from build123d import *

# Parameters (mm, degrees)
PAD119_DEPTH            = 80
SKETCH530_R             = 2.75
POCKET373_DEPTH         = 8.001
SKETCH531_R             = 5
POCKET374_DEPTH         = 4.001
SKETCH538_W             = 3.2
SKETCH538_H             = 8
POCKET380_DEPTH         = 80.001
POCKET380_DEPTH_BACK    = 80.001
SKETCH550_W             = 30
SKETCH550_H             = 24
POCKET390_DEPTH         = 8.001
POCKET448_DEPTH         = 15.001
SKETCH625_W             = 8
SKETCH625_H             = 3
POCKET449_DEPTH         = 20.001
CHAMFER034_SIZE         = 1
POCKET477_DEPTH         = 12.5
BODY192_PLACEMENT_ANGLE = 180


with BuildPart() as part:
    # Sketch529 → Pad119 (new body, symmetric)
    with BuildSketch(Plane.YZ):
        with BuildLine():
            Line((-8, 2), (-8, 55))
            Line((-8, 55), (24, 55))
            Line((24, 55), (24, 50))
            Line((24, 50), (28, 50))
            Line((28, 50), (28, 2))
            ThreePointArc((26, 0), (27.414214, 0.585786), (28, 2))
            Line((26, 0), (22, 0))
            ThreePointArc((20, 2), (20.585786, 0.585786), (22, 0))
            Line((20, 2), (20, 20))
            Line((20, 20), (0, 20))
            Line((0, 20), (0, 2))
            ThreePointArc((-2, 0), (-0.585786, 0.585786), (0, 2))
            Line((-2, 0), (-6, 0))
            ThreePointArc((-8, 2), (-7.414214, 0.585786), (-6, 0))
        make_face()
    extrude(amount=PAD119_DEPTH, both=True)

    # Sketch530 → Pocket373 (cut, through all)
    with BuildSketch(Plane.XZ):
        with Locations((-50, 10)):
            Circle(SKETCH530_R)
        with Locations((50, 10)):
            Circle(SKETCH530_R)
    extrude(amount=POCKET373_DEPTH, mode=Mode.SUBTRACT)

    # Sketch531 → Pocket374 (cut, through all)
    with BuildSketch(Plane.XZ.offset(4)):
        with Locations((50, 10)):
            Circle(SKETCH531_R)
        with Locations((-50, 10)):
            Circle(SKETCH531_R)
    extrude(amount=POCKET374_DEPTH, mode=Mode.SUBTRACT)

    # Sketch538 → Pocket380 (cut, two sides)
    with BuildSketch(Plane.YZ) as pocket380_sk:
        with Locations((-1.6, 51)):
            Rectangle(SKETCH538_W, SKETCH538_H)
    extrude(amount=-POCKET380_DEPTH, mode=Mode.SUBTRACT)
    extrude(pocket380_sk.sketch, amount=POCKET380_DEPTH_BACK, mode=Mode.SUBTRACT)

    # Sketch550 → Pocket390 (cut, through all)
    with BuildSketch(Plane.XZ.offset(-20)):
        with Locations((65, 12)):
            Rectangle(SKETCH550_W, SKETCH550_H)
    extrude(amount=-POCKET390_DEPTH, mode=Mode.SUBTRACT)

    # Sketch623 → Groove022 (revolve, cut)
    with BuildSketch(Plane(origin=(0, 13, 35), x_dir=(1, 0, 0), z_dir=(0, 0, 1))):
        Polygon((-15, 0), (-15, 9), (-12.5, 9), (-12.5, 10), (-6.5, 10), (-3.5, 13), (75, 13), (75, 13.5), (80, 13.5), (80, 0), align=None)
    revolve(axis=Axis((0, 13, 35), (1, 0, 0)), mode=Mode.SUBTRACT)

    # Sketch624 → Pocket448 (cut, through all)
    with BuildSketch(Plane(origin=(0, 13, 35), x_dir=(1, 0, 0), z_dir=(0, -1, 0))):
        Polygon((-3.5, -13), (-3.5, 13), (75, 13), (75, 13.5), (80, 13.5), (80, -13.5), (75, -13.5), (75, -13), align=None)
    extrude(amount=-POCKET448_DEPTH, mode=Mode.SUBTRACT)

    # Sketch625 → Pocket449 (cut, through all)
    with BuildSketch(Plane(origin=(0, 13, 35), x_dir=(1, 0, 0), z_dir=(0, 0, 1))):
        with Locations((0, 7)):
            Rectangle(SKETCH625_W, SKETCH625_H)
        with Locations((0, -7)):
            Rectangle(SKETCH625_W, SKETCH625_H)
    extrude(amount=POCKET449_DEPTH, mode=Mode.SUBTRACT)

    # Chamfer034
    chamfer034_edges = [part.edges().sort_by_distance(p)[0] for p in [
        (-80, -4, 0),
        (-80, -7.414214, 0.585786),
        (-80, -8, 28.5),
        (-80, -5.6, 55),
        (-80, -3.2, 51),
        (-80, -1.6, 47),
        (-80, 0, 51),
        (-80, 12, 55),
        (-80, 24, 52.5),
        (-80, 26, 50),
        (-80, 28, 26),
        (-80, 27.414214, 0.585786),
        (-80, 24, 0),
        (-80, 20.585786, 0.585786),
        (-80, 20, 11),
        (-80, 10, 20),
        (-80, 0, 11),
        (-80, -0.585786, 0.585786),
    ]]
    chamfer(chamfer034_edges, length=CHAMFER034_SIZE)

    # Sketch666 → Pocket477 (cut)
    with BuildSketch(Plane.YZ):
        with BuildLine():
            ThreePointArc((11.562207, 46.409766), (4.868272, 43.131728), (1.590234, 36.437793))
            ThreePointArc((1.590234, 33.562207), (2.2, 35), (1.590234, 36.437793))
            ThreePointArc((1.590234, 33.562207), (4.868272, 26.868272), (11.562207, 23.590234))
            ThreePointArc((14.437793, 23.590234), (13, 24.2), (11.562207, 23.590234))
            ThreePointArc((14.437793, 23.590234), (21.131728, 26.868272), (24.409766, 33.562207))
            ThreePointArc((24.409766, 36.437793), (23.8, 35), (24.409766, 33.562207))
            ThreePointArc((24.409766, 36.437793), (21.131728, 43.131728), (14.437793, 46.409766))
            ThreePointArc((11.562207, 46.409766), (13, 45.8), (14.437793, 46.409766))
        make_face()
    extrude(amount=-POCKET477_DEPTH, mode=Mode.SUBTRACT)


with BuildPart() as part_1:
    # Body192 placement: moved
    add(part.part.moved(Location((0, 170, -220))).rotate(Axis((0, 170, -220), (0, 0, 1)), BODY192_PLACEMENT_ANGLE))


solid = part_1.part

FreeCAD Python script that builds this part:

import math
import FreeCAD as App
import Part
import Sketcher
from FreeCAD import Vector
Q = App.Units.Quantity


def edges_at(feature, points):
    """Names of the edges that pass closest to the given points."""
    edges = feature.Shape.Edges
    near = lambda p: min(range(len(edges)), key=lambda i: edges[i].distToShape(Part.Vertex(*p))[0])
    return sorted({f"Edge{near(p) + 1}" for p in points})


def add_polygon(sketch, points):
    """Adds a closed chain of lines whose ends are joined by coincident constraints."""
    first, n = sketch.GeometryCount, len(points)
    for a, b in zip(points, points[1:] + points[:1]):
        sketch.addGeometry(Part.LineSegment(App.Vector(*a, 0), App.Vector(*b, 0)), False)
    for i in range(n):
        sketch.addConstraint(Sketcher.Constraint("Coincident", first + i, 2, first + (i + 1) % n, 1))

doc = App.newDocument("Part")
body = doc.addObject("PartDesign::Body", "Body")

# Sketch on YZ plane
sketch1 = body.newObject("Sketcher::SketchObject", "Sketch")
sketch1.AttachmentSupport = (doc.getObject("YZ_Plane"), [""])
sketch1.MapMode = "FlatFace"
sketch1.addGeometry(Part.LineSegment(Vector(-8, 55, 0), Vector(-8, 2, 0)), False)
sketch1.addGeometry(Part.ArcOfCircle(Part.Circle(Vector(-6, 2, 0), Vector(0, 0, 1), 2), math.radians(180), math.radians(270)), False)
sketch1.addGeometry(Part.LineSegment(Vector(-6, 0, 0), Vector(-2, 0, 0)), False)
sketch1.addGeometry(Part.ArcOfCircle(Part.Circle(Vector(-2, 2, 0), Vector(0, 0, 1), 2), math.radians(-90), math.radians(0)), False)
sketch1.addGeometry(Part.LineSegment(Vector(0, 2, 0), Vector(0, 20, 0)), False)
sketch1.addGeometry(Part.LineSegment(Vector(0, 20, 0), Vector(20, 20, 0)), False)
sketch1.addGeometry(Part.LineSegment(Vector(20, 20, 0), Vector(20, 2, 0)), False)
sketch1.addGeometry(Part.ArcOfCircle(Part.Circle(Vector(22, 2, 0), Vector(0, 0, 1), 2), math.radians(180), math.radians(270)), False)
sketch1.addGeometry(Part.LineSegment(Vector(22, 0, 0), Vector(26, 0, 0)), False)
sketch1.addGeometry(Part.ArcOfCircle(Part.Circle(Vector(26, 2, 0), Vector(0, 0, 1), 2), math.radians(-90), math.radians(0)), False)
sketch1.addGeometry(Part.LineSegment(Vector(28, 2, 0), Vector(28, 50, 0)), False)
sketch1.addGeometry(Part.LineSegment(Vector(28, 50, 0), Vector(24, 50, 0)), False)
sketch1.addGeometry(Part.LineSegment(Vector(24, 50, 0), Vector(24, 55, 0)), False)
sketch1.addGeometry(Part.LineSegment(Vector(24, 55, 0), Vector(-8, 55, 0)), False)
sketch1.addConstraint(Sketcher.Constraint("Tangent", 0, 2, 1, 1))
sketch1.addConstraint(Sketcher.Constraint("Tangent", 1, 2, 2, 1))
sketch1.addConstraint(Sketcher.Constraint("Tangent", 2, 2, 3, 1))
sketch1.addConstraint(Sketcher.Constraint("Tangent", 3, 2, 4, 1))
sketch1.addConstraint(Sketcher.Constraint("Coincident", 4, 2, 5, 1))
sketch1.addConstraint(Sketcher.Constraint("Coincident", 5, 2, 6, 1))
sketch1.addConstraint(Sketcher.Constraint("Tangent", 6, 2, 7, 1))
sketch1.addConstraint(Sketcher.Constraint("Tangent", 7, 2, 8, 1))
sketch1.addConstraint(Sketcher.Constraint("Tangent", 8, 2, 9, 1))
sketch1.addConstraint(Sketcher.Constraint("Tangent", 9, 2, 10, 1))
sketch1.addConstraint(Sketcher.Constraint("Coincident", 10, 2, 11, 1))
sketch1.addConstraint(Sketcher.Constraint("Coincident", 11, 2, 12, 1))
sketch1.addConstraint(Sketcher.Constraint("Coincident", 12, 2, 13, 1))
sketch1.addConstraint(Sketcher.Constraint("Coincident", 13, 2, 0, 1))
sketch1.addConstraint(Sketcher.Constraint("Vertical", 0))
sketch1.addConstraint(Sketcher.Constraint("Horizontal", 2))
sketch1.addConstraint(Sketcher.Constraint("Vertical", 4))
sketch1.addConstraint(Sketcher.Constraint("Horizontal", 5))
sketch1.addConstraint(Sketcher.Constraint("Vertical", 6))
sketch1.addConstraint(Sketcher.Constraint("Horizontal", 8))
sketch1.addConstraint(Sketcher.Constraint("Vertical", 10))
sketch1.addConstraint(Sketcher.Constraint("Horizontal", 11))
sketch1.addConstraint(Sketcher.Constraint("Vertical", 12))
sketch1.addConstraint(Sketcher.Constraint("Horizontal", 13))
sketch1.addConstraint(Sketcher.Constraint("Equal", 1, 3))
sketch1.addConstraint(Sketcher.Constraint("Equal", 3, 7))
sketch1.addConstraint(Sketcher.Constraint("Equal", 7, 9))
sketch1.addConstraint(Sketcher.Constraint("PointOnObject", 1, 2, -1))
sketch1.addConstraint(Sketcher.Constraint("PointOnObject", 3, 2, -2))
sketch1.addConstraint(Sketcher.Constraint("PointOnObject", 7, 2, -1))
sketch1.addConstraint(Sketcher.Constraint("Equal", 2, 8))
sketch1.addConstraint(Sketcher.Constraint("Equal", 8, 11))
sketch1.addConstraint(Sketcher.Constraint("Radius", 1, 1.999999))
sketch1.addConstraint(Sketcher.Constraint("DistanceX", 2, 1, 2, 2, 4.0))
sketch1.addConstraint(Sketcher.Constraint("DistanceX", 5, 1, 5, 2, 20.0))
sketch1.addConstraint(Sketcher.Constraint("DistanceY", 0, 2, 0, 1, 53.0))
sketch1.addConstraint(Sketcher.Constraint("DistanceY", 4, 1, 4, 2, 18.0))
sketch1.addConstraint(Sketcher.Constraint("DistanceY", 10, 1, 10, 2, 48.0))
pad1 = body.newObject("PartDesign::Pad", "Pad")
pad1.Profile = sketch1
pad1.Length = 160
pad1.Midplane = True

# Sketch on XZ plane
sketch2 = body.newObject("Sketcher::SketchObject", "Sketch001")
sketch2.AttachmentSupport = (doc.getObject("XZ_Plane"), [""])
sketch2.MapMode = "FlatFace"
sketch2.addGeometry(Part.Circle(Vector(-50, 10, 0), Vector(0, 0, 1), 2.8), False)
sketch2.addGeometry(Part.Circle(Vector(50, 10, 0), Vector(0, 0, 1), 2.8), False)
sketch2.addConstraint(Sketcher.Constraint("Equal", 0, 1))
sketch2.addConstraint(Sketcher.Constraint("Symmetric", 0, 3, 1, 3, -2))
sketch2.addConstraint(Sketcher.Constraint("Diameter", 0, 5.5))
sketch2.addConstraint(Sketcher.Constraint("DistanceX", 0, 3, -1, 1, 50.0))
sketch2.addConstraint(Sketcher.Constraint("DistanceY", -1, 1, 0, 3, 10.0))
pocket1 = body.newObject("PartDesign::Pocket", "Pocket")
pocket1.Profile = sketch2
pocket1.Type = "ThroughAll"
pocket1.Reversed = True

# Sketch on XZ plane
sketch3 = body.newObject("Sketcher::SketchObject", "Sketch002")
sketch3.AttachmentSupport = (doc.getObject("XZ_Plane"), [""])
sketch3.MapMode = "FlatFace"
sketch3.AttachmentOffset = App.Placement(Vector(0, 0, 4), App.Rotation())
sketch3.addGeometry(Part.Circle(Vector(50, 10, 0), Vector(0, 0, 1), 5), False)
sketch3.addGeometry(Part.Circle(Vector(-50, 10, 0), Vector(0, 0, 1), 5), False)
sketch3.addConstraint(Sketcher.Constraint("Equal", 0, 1))
sketch3.addConstraint(Sketcher.Constraint("Symmetric", 0, 3, 1, 3, -2))
sketch3.addConstraint(Sketcher.Constraint("Diameter", 0, 10.0))
sketch3.addConstraint(Sketcher.Constraint("DistanceX", -1, 1, 0, 3, 50.0))
sketch3.addConstraint(Sketcher.Constraint("DistanceY", -1, 1, 0, 3, 10.0))
pocket2 = body.newObject("PartDesign::Pocket", "Pocket001")
pocket2.Profile = sketch3
pocket2.Type = "ThroughAll"
pocket2.Reversed = True

# Sketch on YZ plane
sketch4 = body.newObject("Sketcher::SketchObject", "Sketch003")
sketch4.AttachmentSupport = (doc.getObject("YZ_Plane"), [""])
sketch4.MapMode = "FlatFace"
add_polygon(sketch4, [(-3.2, 55), (-3.2, 47), (0, 47), (0, 55)])  # lines 0-3
sketch4.addConstraint(Sketcher.Constraint("Vertical", 0))
sketch4.addConstraint(Sketcher.Constraint("Horizontal", 1))
sketch4.addConstraint(Sketcher.Constraint("Vertical", 2))
sketch4.addConstraint(Sketcher.Constraint("Horizontal", 3))
sketch4.addConstraint(Sketcher.Constraint("PointOnObject", 1, 2, -2))
sketch4.addConstraint(Sketcher.Constraint("DistanceY", 0, 2, 0, 1, 8.0))
sketch4.addConstraint(Sketcher.Constraint("DistanceX", 1, 1, 1, 2, 3.2))
sketch4.addConstraint(Sketcher.Constraint("DistanceY", -1, 1, 0, 2, 47.0))
pocket3 = body.newObject("PartDesign::Pocket", "Pocket002")
pocket3.Profile = sketch4
pocket3.Type = "ThroughAll"
pocket3.Midplane = True

# Sketch on XZ plane
sketch5 = body.newObject("Sketcher::SketchObject", "Sketch004")
sketch5.AttachmentSupport = (doc.getObject("XZ_Plane"), [""])
sketch5.MapMode = "FlatFace"
sketch5.AttachmentOffset = App.Placement(Vector(0, 0, -20), App.Rotation())
add_polygon(sketch5, [(50, 24), (50, 0), (80, 0), (80, 24)])  # lines 0-3
sketch5.addConstraint(Sketcher.Constraint("Vertical", 0))
sketch5.addConstraint(Sketcher.Constraint("Horizontal", 1))
sketch5.addConstraint(Sketcher.Constraint("Vertical", 2))
sketch5.addConstraint(Sketcher.Constraint("Horizontal", 3))
sketch5.addConstraint(Sketcher.Constraint("PointOnObject", 0, 2, -1))
sketch5.addConstraint(Sketcher.Constraint("DistanceX", 1, 1, 1, 2, 30.0))
sketch5.addConstraint(Sketcher.Constraint("DistanceY", 0, 2, 0, 1, 24.0))
sketch5.addConstraint(Sketcher.Constraint("DistanceX", -1, 1, 0, 2, 50.0))
pocket4 = body.newObject("PartDesign::Pocket", "Pocket003")
pocket4.Profile = sketch5
pocket4.Type = "ThroughAll"

# Sketch on XY plane
sketch6 = body.newObject("Sketcher::SketchObject", "Sketch005")
sketch6.AttachmentSupport = (doc.getObject("XY_Plane"), [""])
sketch6.MapMode = "FlatFace"
sketch6.AttachmentOffset = App.Placement(Vector(0, 0, 35), App.Rotation())
add_polygon(sketch6, [(-15, 22), (-15, 13), (80, 13), (80, 26.5), (75, 26.5), (75, 26), (-3.5, 26), (-6.5, 23), (-12.5, 23), (-12.5, 22)])  # lines 0-9
sketch6.addGeometry(Part.LineSegment(Vector(-15, 13, 0), Vector(80, 13, 0)), True)  # axis
sketch6.addConstraint(Sketcher.Constraint("Vertical", 0))
sketch6.addConstraint(Sketcher.Constraint("Horizontal", 1))
sketch6.addConstraint(Sketcher.Constraint("Vertical", 2))
sketch6.addConstraint(Sketcher.Constraint("Horizontal", 3))
sketch6.addConstraint(Sketcher.Constraint("Vertical", 4))
sketch6.addConstraint(Sketcher.Constraint("Horizontal", 5))
sketch6.addConstraint(Sketcher.Constraint("Horizontal", 7))
sketch6.addConstraint(Sketcher.Constraint("Vertical", 8))
sketch6.addConstraint(Sketcher.Constraint("Horizontal", 9))
sketch6.addConstraint(Sketcher.Constraint("Horizontal", 10))
sketch6.addConstraint(Sketcher.Constraint("Coincident", 10, 1, 0, 2))
sketch6.addConstraint(Sketcher.Constraint("Vertical", 2, 2, 10, 2))
sketch6.addConstraint(Sketcher.Constraint("DistanceX", 1, 1, 1, 2, 95.0))
sketch6.addConstraint(Sketcher.Constraint("DistanceX", 3, 2, 3, 1, 5.0))
sketch6.addConstraint(Sketcher.Constraint("DistanceX", 7, 2, 7, 1, 6.0))
sketch6.addConstraint(Sketcher.Constraint("DistanceY", 0, 2, 0, 1, 9.0))
sketch6.addConstraint(Sketcher.Constraint("DistanceY", 8, 2, 8, 1, 1.0))
sketch6.addConstraint(Sketcher.Constraint("Angle", 6, Q("-135 deg")))
sketch6.addConstraint(Sketcher.Constraint("DistanceX", 5, 2, 5, 1, 78.5))
sketch6.addConstraint(Sketcher.Constraint("DistanceX", 9, 2, 9, 1, 2.5))
sketch6.addConstraint(Sketcher.Constraint("DistanceY", 2, 1, 2, 2, 13.5))
sketch6.addConstraint(Sketcher.Constraint("DistanceX", 0, 2, -1, 1, 15.0))
sketch6.addConstraint(Sketcher.Constraint("DistanceY", -1, 1, 0, 2, 13.0))
groove = body.newObject("PartDesign::Groove", "Groove")
groove.Profile = sketch6
groove.ReferenceAxis = (sketch6, ["Axis0"])
groove.Angle = 360

# Sketch on XZ plane
sketch7 = body.newObject("Sketcher::SketchObject", "Sketch006")
sketch7.AttachmentSupport = (doc.getObject("XZ_Plane"), [""])
sketch7.MapMode = "FlatFace"
sketch7.AttachmentOffset = App.Placement(Vector(0, 0, -13), App.Rotation())
add_polygon(sketch7, [(-3.5, 48), (-3.5, 22), (75, 22), (75, 21.5), (80, 21.5), (80, 48.5), (75, 48.5), (75, 48)])  # lines 0-7
sketch7.addConstraint(Sketcher.Constraint("Vertical", 0))
sketch7.addConstraint(Sketcher.Constraint("Horizontal", 1))
sketch7.addConstraint(Sketcher.Constraint("Vertical", 2))
sketch7.addConstraint(Sketcher.Constraint("Horizontal", 3))
sketch7.addConstraint(Sketcher.Constraint("Vertical", 4))
sketch7.addConstraint(Sketcher.Constraint("Horizontal", 5))
sketch7.addConstraint(Sketcher.Constraint("Vertical", 6))
sketch7.addConstraint(Sketcher.Constraint("Horizontal", 7))
sketch7.addConstraint(Sketcher.Constraint("Vertical", 2, 2, 5, 2))
sketch7.addConstraint(Sketcher.Constraint("Equal", 2, 6))
sketch7.addConstraint(Sketcher.Constraint("DistanceX", 3, 1, 3, 2, 5.0))
sketch7.addConstraint(Sketcher.Constraint("DistanceY", 0, 2, 0, 1, 26.0))
sketch7.addConstraint(Sketcher.Constraint("DistanceY", 4, 1, 4, 2, 27.0))
sketch7.addConstraint(Sketcher.Constraint("DistanceX", 1, 1, 1, 2, 78.5))
sketch7.addConstraint(Sketcher.Constraint("DistanceY", -1, 1, 0, 2, 22.0))
sketch7.addConstraint(Sketcher.Constraint("DistanceX", -1, 1, 1, 2, 75.0))
pocket5 = body.newObject("PartDesign::Pocket", "Pocket004")
pocket5.Profile = sketch7
pocket5.Type = "ThroughAll"

# Sketch on XY plane
sketch8 = body.newObject("Sketcher::SketchObject", "Sketch007")
sketch8.AttachmentSupport = (doc.getObject("XY_Plane"), [""])
sketch8.MapMode = "FlatFace"
sketch8.AttachmentOffset = App.Placement(Vector(0, 0, 35), App.Rotation())
add_polygon(sketch8, [(-4, 21.5), (-4, 18.5), (4, 18.5), (4, 21.5)])  # lines 0-3
add_polygon(sketch8, [(-4, 7.5), (-4, 4.5), (4, 4.5), (4, 7.5)])  # lines 4-7
sketch8.addConstraint(Sketcher.Constraint("Vertical", 0))
sketch8.addConstraint(Sketcher.Constraint("Horizontal", 1))
sketch8.addConstraint(Sketcher.Constraint("Vertical", 2))
sketch8.addConstraint(Sketcher.Constraint("Horizontal", 3))
sketch8.addConstraint(Sketcher.Constraint("Vertical", 4))
sketch8.addConstraint(Sketcher.Constraint("Horizontal", 5))
sketch8.addConstraint(Sketcher.Constraint("Vertical", 6))
sketch8.addConstraint(Sketcher.Constraint("Horizontal", 7))
sketch8.addConstraint(Sketcher.Constraint("Vertical", 3, 2, 4, 2))
sketch8.addConstraint(Sketcher.Constraint("Vertical", 2, 2, 5, 2))
sketch8.addConstraint(Sketcher.Constraint("Equal", 2, 4))
sketch8.addConstraint(Sketcher.Constraint("DistanceX", 1, 1, 1, 2, 8.0))
sketch8.addConstraint(Sketcher.Constraint("DistanceY", 0, 2, 0, 1, 3.0))
sketch8.addConstraint(Sketcher.Constraint("DistanceX", 0, 2, -1, 1, 4.0))
sketch8.addConstraint(Sketcher.Constraint("DistanceY", 4, 2, 0, 2, 14.0))
sketch8.addConstraint(Sketcher.Constraint("DistanceY", -1, 1, 0, 2, 18.5))
pocket6 = body.newObject("PartDesign::Pocket", "Pocket005")
pocket6.Profile = sketch8
pocket6.Type = "ThroughAll"
pocket6.Reversed = True
doc.recompute()

chamfer = body.newObject("PartDesign::Chamfer", "Chamfer")
chamfer.Base = (pocket6, edges_at(pocket6, [
    (-80, -4, 0),
    (-80, -7.414, 0.586),
    (-80, -8, 28.5),
    (-80, -5.6, 55),
    (-80, -3.2, 51),
    (-80, -1.6, 47),
    (-80, 0, 51),
    (-80, 12, 55),
    (-80, 24, 52.5),
    (-80, 26, 50),
    (-80, 28, 26),
    (-80, 27.414, 0.586),
    (-80, 24, 0),
    (-80, 20.586, 0.586),
    (-80, 20, 11),
    (-80, 10, 20),
    (-80, 0, 11),
    (-80, -0.586, 0.586),
]))
chamfer.Size = 1

# Sketch on YZ plane
sketch9 = body.newObject("Sketcher::SketchObject", "Sketch008")
sketch9.AttachmentSupport = (doc.getObject("YZ_Plane"), [""])
sketch9.MapMode = "FlatFace"
sketch9.addGeometry(Part.ArcOfCircle(Part.Circle(Vector(13, 35, 0), Vector(0, 0, 1), 11.5), math.radians(97), math.radians(173)), False)
sketch9.addGeometry(Part.ArcOfCircle(Part.Circle(Vector(0.2, 35, 0), Vector(0, 0, 1), 2), math.radians(-46), math.radians(46)), False)
sketch9.addGeometry(Part.ArcOfCircle(Part.Circle(Vector(13, 35, 0), Vector(0, 0, 1), 11.5), math.radians(-173), math.radians(-97)), False)
sketch9.addGeometry(Part.ArcOfCircle(Part.Circle(Vector(13, 22.2, 0), Vector(0, 0, 1), 2), math.radians(44), math.radians(136)), False)
sketch9.addGeometry(Part.ArcOfCircle(Part.Circle(Vector(13, 35, 0), Vector(0, 0, 1), 11.5), math.radians(-83), math.radians(-7)), False)
sketch9.addGeometry(Part.ArcOfCircle(Part.Circle(Vector(25.8, 35, 0), Vector(0, 0, 1), 2), math.radians(134), math.radians(226)), False)
sketch9.addGeometry(Part.ArcOfCircle(Part.Circle(Vector(13, 35, 0), Vector(0, 0, 1), 11.5), math.radians(7), math.radians(83)), False)
sketch9.addGeometry(Part.ArcOfCircle(Part.Circle(Vector(13, 47.8, 0), Vector(0, 0, 1), 2), math.radians(-136), math.radians(-44)), False)
sketch9.addConstraint(Sketcher.Constraint("Coincident", 0, 2, 1, 2))
sketch9.addConstraint(Sketcher.Constraint("Coincident", 1, 1, 2, 1))
sketch9.addConstraint(Sketcher.Constraint("Coincident", 2, 2, 3, 2))
sketch9.addConstraint(Sketcher.Constraint("Coincident", 3, 1, 4, 1))
sketch9.addConstraint(Sketcher.Constraint("Coincident", 4, 2, 5, 2))
sketch9.addConstraint(Sketcher.Constraint("Coincident", 5, 1, 6, 1))
sketch9.addConstraint(Sketcher.Constraint("Coincident", 6, 2, 7, 2))
sketch9.addConstraint(Sketcher.Constraint("Coincident", 7, 1, 0, 1))
sketch9.addConstraint(Sketcher.Constraint("Coincident", 2, 3, 0, 3))
sketch9.addConstraint(Sketcher.Constraint("Coincident", 4, 3, 0, 3))
sketch9.addConstraint(Sketcher.Constraint("Coincident", 6, 3, 0, 3))
sketch9.addConstraint(Sketcher.Constraint("Equal", 0, 2))
sketch9.addConstraint(Sketcher.Constraint("Equal", 1, 3))
sketch9.addConstraint(Sketcher.Constraint("Equal", 2, 4))
sketch9.addConstraint(Sketcher.Constraint("Equal", 3, 5))
sketch9.addConstraint(Sketcher.Constraint("Equal", 4, 6))
sketch9.addConstraint(Sketcher.Constraint("Equal", 5, 7))
sketch9.addConstraint(Sketcher.Constraint("Horizontal", 0, 3, 1, 3))
sketch9.addConstraint(Sketcher.Constraint("Horizontal", 4, 3, 5, 3))
sketch9.addConstraint(Sketcher.Constraint("Horizontal", 2, 2, 3, 1))
sketch9.addConstraint(Sketcher.Constraint("Horizontal", 1, 1, 4, 2))
sketch9.addConstraint(Sketcher.Constraint("Horizontal", 6, 2, 7, 1))
sketch9.addConstraint(Sketcher.Constraint("Vertical", 3, 1, 6, 2))
sketch9.addConstraint(Sketcher.Constraint("Radius", 1, 1.999999))
sketch9.addConstraint(Sketcher.Constraint("Radius", 0, 11.500002))
sketch9.addConstraint(Sketcher.Constraint("DistanceX", -1, 1, 0, 3, 13.000001))
sketch9.addConstraint(Sketcher.Constraint("DistanceY", -1, 1, 0, 3, 34.999999))
sketch9.addConstraint(Sketcher.Constraint("DistanceX", -1, 1, 1, 3, 0.200001))
sketch9.addConstraint(Sketcher.Constraint("DistanceY", -1, 1, 3, 3, 22.200001))
pocket7 = body.newObject("PartDesign::Pocket", "Pocket006")
pocket7.Profile = sketch9
pocket7.Length = 12.5
body2 = doc.addObject("PartDesign::Body", "Body001")
doc.recompute()

body.Placement = App.Placement(Vector(0, 170, -220), App.Rotation(Vector(0, 0, 1), 180))
boolean = body2.newObject("PartDesign::Boolean", "Boolean")
boolean.Type = "Fuse"
boolean.addObjects([body])

doc.recompute()
